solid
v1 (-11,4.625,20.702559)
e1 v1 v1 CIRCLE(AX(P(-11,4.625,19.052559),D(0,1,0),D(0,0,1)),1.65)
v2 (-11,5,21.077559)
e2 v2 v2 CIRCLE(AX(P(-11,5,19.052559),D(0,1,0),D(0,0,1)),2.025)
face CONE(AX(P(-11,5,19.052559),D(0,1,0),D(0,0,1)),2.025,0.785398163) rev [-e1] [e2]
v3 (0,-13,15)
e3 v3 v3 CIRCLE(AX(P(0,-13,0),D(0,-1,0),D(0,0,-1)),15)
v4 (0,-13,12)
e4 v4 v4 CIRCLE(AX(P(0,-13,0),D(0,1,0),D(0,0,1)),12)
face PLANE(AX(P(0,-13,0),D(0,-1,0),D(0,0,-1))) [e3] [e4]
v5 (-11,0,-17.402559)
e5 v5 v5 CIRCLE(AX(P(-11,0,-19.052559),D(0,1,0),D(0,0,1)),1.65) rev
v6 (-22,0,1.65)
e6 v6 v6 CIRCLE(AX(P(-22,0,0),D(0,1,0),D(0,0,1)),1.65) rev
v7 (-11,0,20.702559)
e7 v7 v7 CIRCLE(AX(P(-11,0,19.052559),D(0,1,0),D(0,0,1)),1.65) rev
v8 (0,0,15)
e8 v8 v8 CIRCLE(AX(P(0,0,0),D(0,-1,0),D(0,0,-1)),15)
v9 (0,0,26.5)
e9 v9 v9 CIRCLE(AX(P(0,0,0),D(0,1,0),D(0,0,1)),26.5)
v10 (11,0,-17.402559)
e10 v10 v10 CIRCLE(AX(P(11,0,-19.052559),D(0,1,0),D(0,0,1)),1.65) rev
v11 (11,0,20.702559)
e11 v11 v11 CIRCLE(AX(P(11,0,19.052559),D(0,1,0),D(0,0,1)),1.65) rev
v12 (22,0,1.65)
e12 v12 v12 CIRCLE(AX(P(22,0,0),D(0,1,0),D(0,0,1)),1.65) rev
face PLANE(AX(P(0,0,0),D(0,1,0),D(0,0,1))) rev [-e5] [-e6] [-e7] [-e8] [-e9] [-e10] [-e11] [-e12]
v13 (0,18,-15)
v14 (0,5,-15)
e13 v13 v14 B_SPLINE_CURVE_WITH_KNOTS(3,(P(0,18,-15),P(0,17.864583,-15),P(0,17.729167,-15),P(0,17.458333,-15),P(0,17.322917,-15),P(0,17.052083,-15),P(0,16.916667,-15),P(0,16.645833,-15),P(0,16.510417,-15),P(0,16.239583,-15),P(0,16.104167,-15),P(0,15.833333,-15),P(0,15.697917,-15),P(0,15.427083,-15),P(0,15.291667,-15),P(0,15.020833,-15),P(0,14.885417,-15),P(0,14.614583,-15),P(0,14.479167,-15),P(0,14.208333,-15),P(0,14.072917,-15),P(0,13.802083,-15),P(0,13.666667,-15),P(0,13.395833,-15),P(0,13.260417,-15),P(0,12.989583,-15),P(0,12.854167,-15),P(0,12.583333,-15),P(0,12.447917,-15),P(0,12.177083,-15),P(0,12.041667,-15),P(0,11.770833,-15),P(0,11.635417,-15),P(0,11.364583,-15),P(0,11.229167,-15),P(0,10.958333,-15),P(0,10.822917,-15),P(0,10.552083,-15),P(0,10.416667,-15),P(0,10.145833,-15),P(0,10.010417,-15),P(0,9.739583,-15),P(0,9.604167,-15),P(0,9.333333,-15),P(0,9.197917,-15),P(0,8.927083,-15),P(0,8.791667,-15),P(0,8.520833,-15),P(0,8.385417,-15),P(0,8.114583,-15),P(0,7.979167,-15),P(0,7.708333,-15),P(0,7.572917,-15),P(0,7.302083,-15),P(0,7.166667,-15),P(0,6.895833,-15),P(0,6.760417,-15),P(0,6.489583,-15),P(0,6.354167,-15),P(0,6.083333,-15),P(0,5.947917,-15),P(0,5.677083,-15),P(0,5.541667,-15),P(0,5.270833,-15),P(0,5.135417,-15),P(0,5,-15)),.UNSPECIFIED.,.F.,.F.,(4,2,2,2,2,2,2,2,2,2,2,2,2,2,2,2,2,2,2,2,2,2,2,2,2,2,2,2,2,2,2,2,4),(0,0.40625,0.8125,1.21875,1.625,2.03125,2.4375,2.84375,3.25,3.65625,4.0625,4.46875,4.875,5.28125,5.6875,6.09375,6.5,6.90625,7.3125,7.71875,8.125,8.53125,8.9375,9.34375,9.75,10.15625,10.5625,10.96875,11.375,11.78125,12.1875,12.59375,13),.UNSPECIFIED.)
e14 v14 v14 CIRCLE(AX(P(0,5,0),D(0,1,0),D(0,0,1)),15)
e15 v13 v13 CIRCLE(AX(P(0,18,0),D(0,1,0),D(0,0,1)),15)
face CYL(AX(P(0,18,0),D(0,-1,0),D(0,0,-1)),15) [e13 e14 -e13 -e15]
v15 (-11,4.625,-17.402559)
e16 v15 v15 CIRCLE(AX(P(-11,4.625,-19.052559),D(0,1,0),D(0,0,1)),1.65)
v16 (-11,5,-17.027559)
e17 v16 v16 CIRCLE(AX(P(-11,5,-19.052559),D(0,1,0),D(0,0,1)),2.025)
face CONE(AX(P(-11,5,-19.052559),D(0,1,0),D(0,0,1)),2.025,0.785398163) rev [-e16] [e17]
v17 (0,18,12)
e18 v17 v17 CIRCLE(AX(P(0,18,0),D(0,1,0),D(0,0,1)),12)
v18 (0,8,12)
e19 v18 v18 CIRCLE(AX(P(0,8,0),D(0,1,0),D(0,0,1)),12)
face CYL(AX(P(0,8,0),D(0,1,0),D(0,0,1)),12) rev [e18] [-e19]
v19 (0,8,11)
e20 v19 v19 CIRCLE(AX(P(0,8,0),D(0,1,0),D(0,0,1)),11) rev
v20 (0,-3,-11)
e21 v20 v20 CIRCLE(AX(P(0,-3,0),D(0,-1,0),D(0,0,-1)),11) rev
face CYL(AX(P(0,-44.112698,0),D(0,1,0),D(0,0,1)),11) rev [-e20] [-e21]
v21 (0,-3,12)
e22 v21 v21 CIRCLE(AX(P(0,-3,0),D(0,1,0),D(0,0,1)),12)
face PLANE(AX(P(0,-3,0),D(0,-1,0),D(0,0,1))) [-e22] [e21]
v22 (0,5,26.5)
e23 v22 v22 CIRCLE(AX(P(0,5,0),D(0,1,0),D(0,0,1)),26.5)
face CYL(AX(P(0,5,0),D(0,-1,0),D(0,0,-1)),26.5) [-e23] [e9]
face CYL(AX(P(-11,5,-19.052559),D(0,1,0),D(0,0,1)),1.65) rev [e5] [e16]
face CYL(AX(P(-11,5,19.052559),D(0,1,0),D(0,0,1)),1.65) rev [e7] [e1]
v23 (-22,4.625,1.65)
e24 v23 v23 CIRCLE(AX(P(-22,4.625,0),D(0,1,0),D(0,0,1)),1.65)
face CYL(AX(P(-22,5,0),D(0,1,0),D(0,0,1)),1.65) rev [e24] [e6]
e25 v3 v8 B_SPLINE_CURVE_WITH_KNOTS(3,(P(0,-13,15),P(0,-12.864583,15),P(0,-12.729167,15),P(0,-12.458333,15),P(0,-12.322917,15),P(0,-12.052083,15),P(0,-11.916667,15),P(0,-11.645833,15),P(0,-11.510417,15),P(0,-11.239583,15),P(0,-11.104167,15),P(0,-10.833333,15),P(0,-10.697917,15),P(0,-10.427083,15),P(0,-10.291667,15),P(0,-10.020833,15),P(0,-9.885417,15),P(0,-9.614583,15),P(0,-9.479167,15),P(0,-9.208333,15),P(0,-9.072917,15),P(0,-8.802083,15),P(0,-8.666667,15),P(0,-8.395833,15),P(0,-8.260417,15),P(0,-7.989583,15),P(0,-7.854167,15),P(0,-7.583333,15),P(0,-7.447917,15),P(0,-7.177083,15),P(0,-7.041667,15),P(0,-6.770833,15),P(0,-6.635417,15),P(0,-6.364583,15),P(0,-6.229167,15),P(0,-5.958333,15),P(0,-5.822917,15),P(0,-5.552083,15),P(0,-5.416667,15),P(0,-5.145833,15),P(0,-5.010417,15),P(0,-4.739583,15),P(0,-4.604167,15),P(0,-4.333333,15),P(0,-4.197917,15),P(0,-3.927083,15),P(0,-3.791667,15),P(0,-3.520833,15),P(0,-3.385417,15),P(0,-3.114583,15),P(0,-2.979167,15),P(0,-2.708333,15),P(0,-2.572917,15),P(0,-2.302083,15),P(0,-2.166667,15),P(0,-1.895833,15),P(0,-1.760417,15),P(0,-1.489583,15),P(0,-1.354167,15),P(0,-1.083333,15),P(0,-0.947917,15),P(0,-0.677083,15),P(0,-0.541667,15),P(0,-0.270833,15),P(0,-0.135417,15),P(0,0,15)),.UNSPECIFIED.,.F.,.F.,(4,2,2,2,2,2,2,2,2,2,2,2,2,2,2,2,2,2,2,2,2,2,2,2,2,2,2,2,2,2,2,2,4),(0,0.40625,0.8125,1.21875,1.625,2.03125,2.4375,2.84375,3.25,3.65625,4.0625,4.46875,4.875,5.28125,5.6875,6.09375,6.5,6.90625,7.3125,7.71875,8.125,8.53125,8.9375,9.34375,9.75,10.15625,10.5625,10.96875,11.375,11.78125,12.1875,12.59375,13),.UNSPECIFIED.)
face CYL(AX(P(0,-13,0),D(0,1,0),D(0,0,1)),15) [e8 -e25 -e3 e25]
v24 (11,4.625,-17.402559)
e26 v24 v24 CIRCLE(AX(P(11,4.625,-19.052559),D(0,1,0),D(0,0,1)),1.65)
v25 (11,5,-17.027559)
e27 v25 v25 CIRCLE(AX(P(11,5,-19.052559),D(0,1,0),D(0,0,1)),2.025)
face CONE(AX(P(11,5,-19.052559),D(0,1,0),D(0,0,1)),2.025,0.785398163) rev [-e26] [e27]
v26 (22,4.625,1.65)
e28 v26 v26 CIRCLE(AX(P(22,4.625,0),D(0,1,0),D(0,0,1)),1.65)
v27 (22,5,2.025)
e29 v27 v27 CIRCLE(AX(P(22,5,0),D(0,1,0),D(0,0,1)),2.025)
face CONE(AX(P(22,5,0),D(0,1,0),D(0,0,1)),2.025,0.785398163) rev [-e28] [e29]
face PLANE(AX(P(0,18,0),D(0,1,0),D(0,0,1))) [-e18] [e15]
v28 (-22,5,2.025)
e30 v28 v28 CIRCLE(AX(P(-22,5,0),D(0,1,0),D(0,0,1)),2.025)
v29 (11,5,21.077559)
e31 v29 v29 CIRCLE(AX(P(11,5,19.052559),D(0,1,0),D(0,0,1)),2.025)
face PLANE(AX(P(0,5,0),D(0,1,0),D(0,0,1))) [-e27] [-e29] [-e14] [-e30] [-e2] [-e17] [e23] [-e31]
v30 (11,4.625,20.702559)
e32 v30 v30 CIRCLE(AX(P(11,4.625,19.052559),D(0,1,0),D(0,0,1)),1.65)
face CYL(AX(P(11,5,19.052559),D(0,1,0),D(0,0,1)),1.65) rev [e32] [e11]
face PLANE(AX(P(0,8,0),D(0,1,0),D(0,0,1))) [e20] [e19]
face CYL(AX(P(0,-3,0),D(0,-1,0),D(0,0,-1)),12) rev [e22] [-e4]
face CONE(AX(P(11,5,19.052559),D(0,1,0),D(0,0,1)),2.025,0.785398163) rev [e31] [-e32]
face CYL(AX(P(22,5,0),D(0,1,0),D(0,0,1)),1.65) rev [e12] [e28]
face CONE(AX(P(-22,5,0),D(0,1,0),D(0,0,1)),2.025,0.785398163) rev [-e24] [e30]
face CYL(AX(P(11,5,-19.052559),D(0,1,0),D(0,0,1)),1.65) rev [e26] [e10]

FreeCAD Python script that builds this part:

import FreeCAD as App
import Part
import Sketcher
from FreeCAD import Vector

doc = App.newDocument("Part")
body = doc.addObject("PartDesign::Body", "Body")

sketch1 = body.newObject("Sketcher::SketchObject", "Sketch")
sketch1.AttachmentSupport = (doc.getObject("XZ_Plane"), [""])
sketch1.MapMode = "FlatFace"
sketch1.addGeometry(Part.Circle(Vector(0, 0, 0), Vector(0, 0, 1), 26), False)
sketch1.addConstraint([
    Sketcher.Constraint("Coincident", 0, 3, -1, 1),
    Sketcher.Constraint("Diameter", 0, 53.0),
])
pad1 = body.newObject("PartDesign::Pad", "Pad")
pad1.Profile = sketch1
pad1.Length = 5
pad1.Reversed = True

sketch2 = body.newObject("Sketcher::SketchObject", "Sketch001")
sketch2.AttachmentSupport = (doc.getObject("XZ_Plane"), [""])
sketch2.MapMode = "FlatFace"
sketch2.AttachmentOffset = App.Placement(Vector(0, 0, -5), App.Rotation())
sketch2.addGeometry(Part.Circle(Vector(0, 0, 0), Vector(0, 0, 1), 15), False)
sketch2.addConstraint([
    Sketcher.Constraint("Coincident", 0, 3, -1, 1),
    Sketcher.Constraint("Diameter", 0, 30.0),
])
pad2 = body.newObject("PartDesign::Pad", "Pad001")
pad2.Profile = sketch2
pad2.Length = 13
pad2.Reversed = True

sketch3 = body.newObject("Sketcher::SketchObject", "Sketch002")
sketch3.AttachmentSupport = (doc.getObject("XZ_Plane"), [""])
sketch3.MapMode = "FlatFace"
sketch3.AttachmentOffset = App.Placement(Vector(0, 0, 13), App.Rotation())
sketch3.addGeometry(Part.Circle(Vector(0, 0, 0), Vector(0, 0, 1), 15), False)
sketch3.addConstraint([
    Sketcher.Constraint("Coincident", 0, 3, -1, 1),
    Sketcher.Constraint("Diameter", 0, 30.0),
])
pad3 = body.newObject("PartDesign::Pad", "Pad002")
pad3.Profile = sketch3
pad3.Length = 13
pad3.Reversed = True

sketch4 = body.newObject("Sketcher::SketchObject", "Sketch003")
sketch4.AttachmentSupport = (doc.getObject("XZ_Plane"), [""])
sketch4.MapMode = "FlatFace"
sketch4.AttachmentOffset = App.Placement(Vector(0, 0, -5), App.Rotation())
sketch4.addGeometry(Part.Circle(Vector(22, 0, 0), Vector(0, 0, 1), 1.6), False)
sketch4.addConstraint([
    Sketcher.Constraint("PointOnObject", 0, 3, -1),
    Sketcher.Constraint("Diameter", 0, 3.3),
    Sketcher.Constraint("DistanceX", -1, 1, 0, 3, 22.0),
])
doc.recompute()
hole = body.newObject("PartDesign::Hole", "Hole")
hole.Profile = sketch4
hole.ThreadType = "None"
hole.Diameter = 3.3
hole.DepthType = "ThroughAll"
hole.HoleCutType = "Countersink"
hole.HoleCutDiameter = 4.05
hole.HoleCutCountersinkAngle = 90
hole.Reversed = True
doc.recompute()

polarpattern = body.newObject("PartDesign::PolarPattern", "PolarPattern")
polarpattern.Originals = [hole]
polarpattern.Axis = (doc.getObject("Y_Axis"), [""])
polarpattern.Angle = 360
polarpattern.Occurrences = 6
body.Tip = polarpattern

sketch5 = body.newObject("Sketcher::SketchObject", "Sketch004")
sketch5.AttachmentSupport = (doc.getObject("XZ_Plane"), [""])
sketch5.MapMode = "FlatFace"
sketch5.AttachmentOffset = App.Placement(Vector(0, 0, -18), App.Rotation())
sketch5.addGeometry(Part.Circle(Vector(0, 0, 0), Vector(0, 0, 1), 11), False)
sketch5.addConstraint([
    Sketcher.Constraint("Coincident", 0, 3, -1, 1),
    Sketcher.Constraint("Diameter", 0, 22.0),
])
pocket1 = body.newObject("PartDesign::Pocket", "Pocket")
pocket1.Profile = sketch5
pocket1.Length = 31
pocket1.Reversed = True

sketch6 = body.newObject("Sketcher::SketchObject", "Sketch005")
sketch6.AttachmentSupport = (doc.getObject("XZ_Plane"), [""])
sketch6.MapMode = "FlatFace"
sketch6.AttachmentOffset = App.Placement(Vector(0, 0, -18), App.Rotation())
sketch6.addGeometry(Part.Circle(Vector(0, 0, 0), Vector(0, 0, 1), 12), False)
sketch6.addConstraint([
    Sketcher.Constraint("Coincident", 0, 3, -1, 1),
    Sketcher.Constraint("Diameter", 0, 24.0),
])
pocket2 = body.newObject("PartDesign::Pocket", "Pocket001")
pocket2.Profile = sketch6
pocket2.Length = 10
pocket2.Reversed = True
doc.recompute()

datumplane = body.newObject("PartDesign::Plane", "DatumPlane")
datumplane.AttachmentSupport = (doc.getObject("XZ_Plane"), [""])
datumplane.MapMode = "FlatFace"
datumplane.AttachmentOffset = App.Placement(Vector(0, 0, -2.5), App.Rotation())
mirrored = body.newObject("PartDesign::Mirrored", "Mirrored")
mirrored.Originals = [pocket2]
mirrored.MirrorPlane = (datumplane, [""])
body.Tip = mirrored

doc.recompute()
